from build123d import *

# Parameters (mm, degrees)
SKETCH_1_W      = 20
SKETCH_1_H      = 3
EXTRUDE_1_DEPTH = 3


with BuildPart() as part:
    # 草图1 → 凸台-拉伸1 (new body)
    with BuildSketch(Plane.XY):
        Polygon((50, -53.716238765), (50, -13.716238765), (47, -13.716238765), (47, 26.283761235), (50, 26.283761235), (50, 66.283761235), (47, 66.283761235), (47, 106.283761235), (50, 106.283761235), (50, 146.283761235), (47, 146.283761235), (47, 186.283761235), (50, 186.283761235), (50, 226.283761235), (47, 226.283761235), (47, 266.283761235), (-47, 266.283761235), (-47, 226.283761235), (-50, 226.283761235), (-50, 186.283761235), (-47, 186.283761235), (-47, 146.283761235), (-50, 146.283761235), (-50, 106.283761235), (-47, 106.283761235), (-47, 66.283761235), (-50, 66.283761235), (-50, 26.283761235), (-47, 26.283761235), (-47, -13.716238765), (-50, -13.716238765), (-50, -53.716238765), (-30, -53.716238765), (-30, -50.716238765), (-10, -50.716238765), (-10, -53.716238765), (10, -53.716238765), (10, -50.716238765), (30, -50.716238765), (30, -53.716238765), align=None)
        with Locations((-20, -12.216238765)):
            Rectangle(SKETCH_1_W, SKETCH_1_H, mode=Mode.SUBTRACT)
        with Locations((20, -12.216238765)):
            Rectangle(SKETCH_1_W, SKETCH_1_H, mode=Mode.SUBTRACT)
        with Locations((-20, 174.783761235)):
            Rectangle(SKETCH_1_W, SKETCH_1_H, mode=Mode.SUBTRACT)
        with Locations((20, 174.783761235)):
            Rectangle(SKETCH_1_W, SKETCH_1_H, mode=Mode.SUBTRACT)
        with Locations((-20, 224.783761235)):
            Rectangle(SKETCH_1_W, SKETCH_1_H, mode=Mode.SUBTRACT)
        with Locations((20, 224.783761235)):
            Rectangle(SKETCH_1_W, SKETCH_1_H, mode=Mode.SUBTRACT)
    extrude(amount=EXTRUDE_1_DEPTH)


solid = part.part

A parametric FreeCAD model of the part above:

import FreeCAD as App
import Part
import Sketcher

doc = App.newDocument("Part")
params = doc.addObject("Spreadsheet::Sheet", "Params")
for row, (alias, value) in enumerate([
    ("sketch1_width", "3 mm"),
    ("sketch1_width2", "94 mm"),
    ("sketch1_height", "40 mm"),
    ("pad1_length", "3 mm"),
], start=1):
    params.set(f"A{row}", alias)
    params.set(f"B{row}", "=" + value)
    params.setAlias(f"B{row}", alias)

body = doc.addObject("PartDesign::Body", "Body")

# Sketch on XY plane
sketch1 = body.newObject("Sketcher::SketchObject", "Sketch")
sketch1.AttachmentSupport = (doc.getObject("XY_Plane"), [""])
sketch1.MapMode = "FlatFace"
sketch1.addGeometry([
    Part.LineSegment(App.Vector(50, -53.7, 0), App.Vector(50, -13.7, 0)),  # 0
    Part.LineSegment(App.Vector(50, -13.7, 0), App.Vector(47, -13.7, 0)),  # 1
    Part.LineSegment(App.Vector(47, -13.7, 0), App.Vector(47, 26.3, 0)),  # 2
    Part.LineSegment(App.Vector(47, 26.3, 0), App.Vector(50, 26.3, 0)),  # 3
    Part.LineSegment(App.Vector(50, 26.3, 0), App.Vector(50, 66.3, 0)),  # 4
    Part.LineSegment(App.Vector(50, 66.3, 0), App.Vector(47, 66.3, 0)),  # 5
    Part.LineSegment(App.Vector(47, 66.3, 0), App.Vector(47, 106.3, 0)),  # 6
    Part.LineSegment(App.Vector(47, 106.3, 0), App.Vector(50, 106.3, 0)),  # 7
    Part.LineSegment(App.Vector(50, 106.3, 0), App.Vector(50, 146.3, 0)),  # 8
    Part.LineSegment(App.Vector(50, 146.3, 0), App.Vector(47, 146.3, 0)),  # 9
    Part.LineSegment(App.Vector(47, 146.3, 0), App.Vector(47, 186.3, 0)),  # 10
    Part.LineSegment(App.Vector(47, 186.3, 0), App.Vector(50, 186.3, 0)),  # 11
    Part.LineSegment(App.Vector(50, 186.3, 0), App.Vector(50, 226.3, 0)),  # 12
    Part.LineSegment(App.Vector(50, 226.3, 0), App.Vector(47, 226.3, 0)),  # 13
    Part.LineSegment(App.Vector(47, 226.3, 0), App.Vector(47, 266.3, 0)),  # 14
    Part.LineSegment(App.Vector(47, 266.3, 0), App.Vector(-47, 266.3, 0)),  # 15
    Part.LineSegment(App.Vector(-47, 266.3, 0), App.Vector(-47, 226.3, 0)),  # 16
    Part.LineSegment(App.Vector(-47, 226.3, 0), App.Vector(-50, 226.3, 0)),  # 17
    Part.LineSegment(App.Vector(-50, 226.3, 0), App.Vector(-50, 186.3, 0)),  # 18
    Part.LineSegment(App.Vector(-50, 186.3, 0), App.Vector(-47, 186.3, 0)),  # 19
    Part.LineSegment(App.Vector(-47, 186.3, 0), App.Vector(-47, 146.3, 0)),  # 20
    Part.LineSegment(App.Vector(-47, 146.3, 0), App.Vector(-50, 146.3, 0)),  # 21
    Part.LineSegment(App.Vector(-50, 146.3, 0), App.Vector(-50, 106.3, 0)),  # 22
    Part.LineSegment(App.Vector(-50, 106.3, 0), App.Vector(-47, 106.3, 0)),  # 23
    Part.LineSegment(App.Vector(-47, 106.3, 0), App.Vector(-47, 66.3, 0)),  # 24
    Part.LineSegment(App.Vector(-47, 66.3, 0), App.Vector(-50, 66.3, 0)),  # 25
    Part.LineSegment(App.Vector(-50, 66.3, 0), App.Vector(-50, 26.3, 0)),  # 26
    Part.LineSegment(App.Vector(-50, 26.3, 0), App.Vector(-47, 26.3, 0)),  # 27
    Part.LineSegment(App.Vector(-47, 26.3, 0), App.Vector(-47, -13.7, 0)),  # 28
    Part.LineSegment(App.Vector(-47, -13.7, 0), App.Vector(-50, -13.7, 0)),  # 29
    Part.LineSegment(App.Vector(-50, -13.7, 0), App.Vector(-50, -53.7, 0)),  # 30
    Part.LineSegment(App.Vector(-50, -53.7, 0), App.Vector(-30, -53.7, 0)),  # 31
    Part.LineSegment(App.Vector(-30, -53.7, 0), App.Vector(-30, -50.7, 0)),  # 32
    Part.LineSegment(App.Vector(-30, -50.7, 0), App.Vector(-10, -50.7, 0)),  # 33
    Part.LineSegment(App.Vector(-10, -50.7, 0), App.Vector(-10, -53.7, 0)),  # 34
    Part.LineSegment(App.Vector(-10, -53.7, 0), App.Vector(10, -53.7, 0)),  # 35
    Part.LineSegment(App.Vector(10, -53.7, 0), App.Vector(10, -50.7, 0)),  # 36
    Part.LineSegment(App.Vector(10, -50.7, 0), App.Vector(30, -50.7, 0)),  # 37
    Part.LineSegment(App.Vector(30, -50.7, 0), App.Vector(30, -53.7, 0)),  # 38
    Part.LineSegment(App.Vector(30, -53.7, 0), App.Vector(50, -53.7, 0)),  # 39
    Part.LineSegment(App.Vector(-10, -13.7, 0), App.Vector(-30, -13.7, 0)),  # 40
    Part.LineSegment(App.Vector(-30, -13.7, 0), App.Vector(-30, -10.7, 0)),  # 41
    Part.LineSegment(App.Vector(-30, -10.7, 0), App.Vector(-10, -10.7, 0)),  # 42
    Part.LineSegment(App.Vector(-10, -10.7, 0), App.Vector(-10, -13.7, 0)),  # 43
    Part.LineSegment(App.Vector(30, -13.7, 0), App.Vector(10, -13.7, 0)),  # 44
    Part.LineSegment(App.Vector(10, -13.7, 0), App.Vector(10, -10.7, 0)),  # 45
    Part.LineSegment(App.Vector(10, -10.7, 0), App.Vector(30, -10.7, 0)),  # 46
    Part.LineSegment(App.Vector(30, -10.7, 0), App.Vector(30, -13.7, 0)),  # 47
    Part.LineSegment(App.Vector(-10, 173.3, 0), App.Vector(-30, 173.3, 0)),  # 48
    Part.LineSegment(App.Vector(-30, 173.3, 0), App.Vector(-30, 176.3, 0)),  # 49
    Part.LineSegment(App.Vector(-30, 176.3, 0), App.Vector(-10, 176.3, 0)),  # 50
    Part.LineSegment(App.Vector(-10, 176.3, 0), App.Vector(-10, 173.3, 0)),  # 51
    Part.LineSegment(App.Vector(-10, 223.3, 0), App.Vector(-30, 223.3, 0)),  # 52
    Part.LineSegment(App.Vector(-30, 223.3, 0), App.Vector(-30, 226.3, 0)),  # 53
    Part.LineSegment(App.Vector(-30, 226.3, 0), App.Vector(-10, 226.3, 0)),  # 54
    Part.LineSegment(App.Vector(-10, 226.3, 0), App.Vector(-10, 223.3, 0)),  # 55
    Part.LineSegment(App.Vector(30, 173.3, 0), App.Vector(10, 173.3, 0)),  # 56
    Part.LineSegment(App.Vector(10, 173.3, 0), App.Vector(10, 176.3, 0)),  # 57
    Part.LineSegment(App.Vector(10, 176.3, 0), App.Vector(30, 176.3, 0)),  # 58
    Part.LineSegment(App.Vector(30, 176.3, 0), App.Vector(30, 173.3, 0)),  # 59
    Part.LineSegment(App.Vector(30, 223.3, 0), App.Vector(10, 223.3, 0)),  # 60
    Part.LineSegment(App.Vector(10, 223.3, 0), App.Vector(10, 226.3, 0)),  # 61
    Part.LineSegment(App.Vector(10, 226.3, 0), App.Vector(30, 226.3, 0)),  # 62
    Part.LineSegment(App.Vector(30, 226.3, 0), App.Vector(30, 223.3, 0)),  # 63
], False)
sketch1.addConstraint([
    Sketcher.Constraint("Coincident", 0, 2, 1, 1),
    Sketcher.Constraint("Coincident", 1, 2, 2, 1),
    Sketcher.Constraint("Coincident", 2, 2, 3, 1),
    Sketcher.Constraint("Coincident", 3, 2, 4, 1),
    Sketcher.Constraint("Coincident", 4, 2, 5, 1),
    Sketcher.Constraint("Coincident", 5, 2, 6, 1),
    Sketcher.Constraint("Coincident", 6, 2, 7, 1),
    Sketcher.Constraint("Coincident", 7, 2, 8, 1),
    Sketcher.Constraint("Coincident", 8, 2, 9, 1),
    Sketcher.Constraint("Coincident", 9, 2, 10, 1),
    Sketcher.Constraint("Coincident", 10, 2, 11, 1),
    Sketcher.Constraint("Coincident", 11, 2, 12, 1),
    Sketcher.Constraint("Coincident", 12, 2, 13, 1),
    Sketcher.Constraint("Coincident", 13, 2, 14, 1),
    Sketcher.Constraint("Coincident", 14, 2, 15, 1),
    Sketcher.Constraint("Coincident", 15, 2, 16, 1),
    Sketcher.Constraint("Coincident", 16, 2, 17, 1),
    Sketcher.Constraint("Coincident", 17, 2, 18, 1),
    Sketcher.Constraint("Coincident", 18, 2, 19, 1),
    Sketcher.Constraint("Coincident", 19, 2, 20, 1),
    Sketcher.Constraint("Coincident", 20, 2, 21, 1),
    Sketcher.Constraint("Coincident", 21, 2, 22, 1),
    Sketcher.Constraint("Coincident", 22, 2, 23, 1),
    Sketcher.Constraint("Coincident", 23, 2, 24, 1),
    Sketcher.Constraint("Coincident", 24, 2, 25, 1),
    Sketcher.Constraint("Coincident", 25, 2, 26, 1),
    Sketcher.Constraint("Coincident", 26, 2, 27, 1),
    Sketcher.Constraint("Coincident", 27, 2, 28, 1),
    Sketcher.Constraint("Coincident", 28, 2, 29, 1),
    Sketcher.Constraint("Coincident", 29, 2, 30, 1),
    Sketcher.Constraint("Coincident", 30, 2, 31, 1),
    Sketcher.Constraint("Coincident", 31, 2, 32, 1),
    Sketcher.Constraint("Coincident", 32, 2, 33, 1),
    Sketcher.Constraint("Coincident", 33, 2, 34, 1),
    Sketcher.Constraint("Coincident", 34, 2, 35, 1),
    Sketcher.Constraint("Coincident", 35, 2, 36, 1),
    Sketcher.Constraint("Coincident", 36, 2, 37, 1),
    Sketcher.Constraint("Coincident", 37, 2, 38, 1),
    Sketcher.Constraint("Coincident", 38, 2, 39, 1),
    Sketcher.Constraint("Coincident", 39, 2, 0, 1),
    Sketcher.Constraint("Coincident", 40, 2, 41, 1),
    Sketcher.Constraint("Coincident", 41, 2, 42, 1),
    Sketcher.Constraint("Coincident", 42, 2, 43, 1),
    Sketcher.Constraint("Coincident", 43, 2, 40, 1),
    Sketcher.Constraint("Coincident", 44, 2, 45, 1),
    Sketcher.Constraint("Coincident", 45, 2, 46, 1),
    Sketcher.Constraint("Coincident", 46, 2, 47, 1),
    Sketcher.Constraint("Coincident", 47, 2, 44, 1),
    Sketcher.Constraint("Coincident", 48, 2, 49, 1),
    Sketcher.Constraint("Coincident", 49, 2, 50, 1),
    Sketcher.Constraint("Coincident", 50, 2, 51, 1),
    Sketcher.Constraint("Coincident", 51, 2, 48, 1),
    Sketcher.Constraint("Coincident", 52, 2, 53, 1),
    Sketcher.Constraint("Coincident", 53, 2, 54, 1),
    Sketcher.Constraint("Coincident", 54, 2, 55, 1),
    Sketcher.Constraint("Coincident", 55, 2, 52, 1),
    Sketcher.Constraint("Coincident", 56, 2, 57, 1),
    Sketcher.Constraint("Coincident", 57, 2, 58, 1),
    Sketcher.Constraint("Coincident", 58, 2, 59, 1),
    Sketcher.Constraint("Coincident", 59, 2, 56, 1),
    Sketcher.Constraint("Coincident", 60, 2, 61, 1),
    Sketcher.Constraint("Coincident", 61, 2, 62, 1),
    Sketcher.Constraint("Coincident", 62, 2, 63, 1),
    Sketcher.Constraint("Coincident", 63, 2, 60, 1),
    Sketcher.Constraint("Vertical", 0),
    Sketcher.Constraint("Horizontal", 1),
    Sketcher.Constraint("Vertical", 2),
    Sketcher.Constraint("Horizontal", 3),
    Sketcher.Constraint("Vertical", 4),
    Sketcher.Constraint("Horizontal", 5),
    Sketcher.Constraint("Vertical", 6),
    Sketcher.Constraint("Horizontal", 7),
    Sketcher.Constraint("Vertical", 8),
    Sketcher.Constraint("Horizontal", 9),
    Sketcher.Constraint("Vertical", 10),
    Sketcher.Constraint("Horizontal", 11),
    Sketcher.Constraint("Vertical", 12),
    Sketcher.Constraint("Horizontal", 13),
    Sketcher.Constraint("Vertical", 14),
    Sketcher.Constraint("Horizontal", 15),
    Sketcher.Constraint("Vertical", 16),
    Sketcher.Constraint("Horizontal", 17),
    Sketcher.Constraint("Vertical", 18),
    Sketcher.Constraint("Horizontal", 19),
    Sketcher.Constraint("Vertical", 20),
    Sketcher.Constraint("Horizontal", 21),
    Sketcher.Constraint("Vertical", 22),
    Sketcher.Constraint("Horizontal", 23),
    Sketcher.Constraint("Vertical", 24),
    Sketcher.Constraint("Horizontal", 25),
    Sketcher.Constraint("Vertical", 26),
    Sketcher.Constraint("Horizontal", 27),
    Sketcher.Constraint("Vertical", 28),
    Sketcher.Constraint("Horizontal", 29),
    Sketcher.Constraint("Vertical", 30),
    Sketcher.Constraint("Horizontal", 31),
    Sketcher.Constraint("Vertical", 32),
    Sketcher.Constraint("Horizontal", 33),
    Sketcher.Constraint("Vertical", 34),
    Sketcher.Constraint("Horizontal", 35),
    Sketcher.Constraint("Vertical", 36),
    Sketcher.Constraint("Horizontal", 37),
    Sketcher.Constraint("Vertical", 38),
    Sketcher.Constraint("Horizontal", 39),
    Sketcher.Constraint("Horizontal", 40),
    Sketcher.Constraint("Vertical", 41),
    Sketcher.Constraint("Horizontal", 42),
    Sketcher.Constraint("Vertical", 43),
    Sketcher.Constraint("Horizontal", 44),
    Sketcher.Constraint("Vertical", 45),
    Sketcher.Constraint("Horizontal", 46),
    Sketcher.Constraint("Vertical", 47),
    Sketcher.Constraint("Horizontal", 48),
    Sketcher.Constraint("Vertical", 49),
    Sketcher.Constraint("Horizontal", 50),
    Sketcher.Constraint("Vertical", 51),
    Sketcher.Constraint("Horizontal", 52),
    Sketcher.Constraint("Vertical", 53),
    Sketcher.Constraint("Horizontal", 54),
    Sketcher.Constraint("Vertical", 55),
    Sketcher.Constraint("Horizontal", 56),
    Sketcher.Constraint("Vertical", 57),
    Sketcher.Constraint("Horizontal", 58),
    Sketcher.Constraint("Vertical", 59),
    Sketcher.Constraint("Horizontal", 60),
    Sketcher.Constraint("Vertical", 61),
    Sketcher.Constraint("Horizontal", 62),
    Sketcher.Constraint("Vertical", 63),
    Sketcher.Constraint("Symmetric", 13, 2, 16, 2, -2),
    Sketcher.Constraint("Symmetric", 11, 2, 18, 2, -2),
    Sketcher.Constraint("Symmetric", 9, 2, 20, 2, -2),
    Sketcher.Constraint("Symmetric", 7, 2, 22, 2, -2),
    Sketcher.Constraint("Symmetric", 5, 2, 24, 2, -2),
    Sketcher.Constraint("Symmetric", 3, 2, 26, 2, -2),
    Sketcher.Constraint("Symmetric", 1, 2, 28, 2, -2),
    Sketcher.Constraint("Symmetric", 33, 2, 36, 2, -2),
    Sketcher.Constraint("Symmetric", 31, 2, 38, 2, -2),
    Sketcher.Constraint("Symmetric", 43, 2, 44, 2, -2),
    Sketcher.Constraint("Symmetric", 41, 2, 46, 2, -2),
    Sketcher.Constraint("Symmetric", 51, 2, 56, 2, -2),
    Sketcher.Constraint("Symmetric", 49, 2, 58, 2, -2),
    Sketcher.Constraint("Symmetric", 55, 2, 60, 2, -2),
    Sketcher.Constraint("Symmetric", 53, 2, 62, 2, -2),
    Sketcher.Constraint("Horizontal", 31, 2, 34, 2),
    Sketcher.Constraint("Horizontal", 29, 2, 40, 2),
    Sketcher.Constraint("Horizontal", 17, 2, 53, 2),
    Sketcher.Constraint("Vertical", 0, 2, 3, 2),
    Sketcher.Constraint("Vertical", 2, 2, 5, 2),
    Sketcher.Constraint("Vertical", 4, 2, 7, 2),
    Sketcher.Constraint("Vertical", 6, 2, 9, 2),
    Sketcher.Constraint("Vertical", 8, 2, 11, 2),
    Sketcher.Constraint("Vertical", 10, 2, 13, 2),
    Sketcher.Constraint("Vertical", 26, 2, 29, 2),
    Sketcher.Constraint("Vertical", 32, 2, 40, 2),
    Sketcher.Constraint("Vertical", 34, 2, 42, 2),
    Sketcher.Constraint("Vertical", 41, 2, 48, 2),
    Sketcher.Constraint("Vertical", 43, 2, 50, 2),
    Sketcher.Constraint("Vertical", 49, 2, 52, 2),
    Sketcher.Constraint("Vertical", 51, 2, 54, 2),
    Sketcher.Constraint("Equal", 31, 33),
    Sketcher.Constraint("Equal", 33, 35),
    Sketcher.Constraint("Equal", 0, 2),
    Sketcher.Constraint("Equal", 2, 4),
    Sketcher.Constraint("Equal", 4, 6),
    Sketcher.Constraint("Equal", 6, 8),
    Sketcher.Constraint("Equal", 8, 10),
    Sketcher.Constraint("Equal", 10, 12),
    Sketcher.Constraint("Equal", 12, 14),
    Sketcher.Constraint("Equal", 29, 32),
    Sketcher.Constraint("Equal", 38, 41),
    Sketcher.Constraint("Equal", 47, 49),
    Sketcher.Constraint("Equal", 51, 53),
    Sketcher.Constraint("DistanceX", 1, 2, 1, 1, 3.0),
    Sketcher.Constraint("DistanceX", 15, 2, 15, 1, 94.0),
    Sketcher.Constraint("DistanceY", 0, 1, 0, 2, 40.0),
    Sketcher.Constraint("DistanceY", 0, 2, -1, 1, 13.716239),
    Sketcher.Constraint("DistanceY", -1, 1, 48, 2, 173.283761),
])
sketch1.setExpression("Constraints[172]", "Params.sketch1_width")
sketch1.setExpression("Constraints[173]", "Params.sketch1_width2")
sketch1.setExpression("Constraints[174]", "Params.sketch1_height")
pad1 = body.newObject("PartDesign::Pad", "Pad")
pad1.Profile = sketch1
pad1.setExpression("Length", "Params.pad1_length")

doc.recompute()
